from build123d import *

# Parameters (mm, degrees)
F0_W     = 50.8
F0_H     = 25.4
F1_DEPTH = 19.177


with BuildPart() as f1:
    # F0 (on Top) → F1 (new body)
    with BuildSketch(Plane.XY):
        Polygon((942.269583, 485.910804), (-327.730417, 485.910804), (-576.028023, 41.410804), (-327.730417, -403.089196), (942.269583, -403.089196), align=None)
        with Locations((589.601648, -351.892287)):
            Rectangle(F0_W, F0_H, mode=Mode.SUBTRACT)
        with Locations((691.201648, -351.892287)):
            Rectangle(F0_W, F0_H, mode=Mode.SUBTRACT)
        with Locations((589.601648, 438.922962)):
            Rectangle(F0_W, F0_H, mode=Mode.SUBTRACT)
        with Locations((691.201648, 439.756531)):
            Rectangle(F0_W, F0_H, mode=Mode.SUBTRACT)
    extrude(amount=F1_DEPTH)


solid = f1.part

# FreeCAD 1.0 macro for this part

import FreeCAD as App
import Part
import Sketcher

V = App.Vector
Q = App.Units.Quantity

doc = App.newDocument("Part")
params = doc.addObject("Spreadsheet::Sheet", "Params")
for row, (alias, value) in enumerate([
    ("sketch1_width", "50 in"),
    ("sketch1_width2", "2 in"),
    ("sketch1_height", "35 in"),
    ("sketch1_height2", "1 in"),
    ("pad1_length", "0.755 in"),
], start=1):
    params.set(f"A{row}", alias)
    params.set(f"B{row}", "=" + value)
    params.setAlias(f"B{row}", alias)

body = doc.addObject("PartDesign::Body", "Body")

# Sketch on XY plane
sketch1 = body.newObject("Sketcher::SketchObject", "Sketch")
sketch1.AttachmentSupport = (doc.getObject("XY_Plane"), [""])
sketch1.MapMode = "FlatFace"
sketch1.addGeometry(Part.LineSegment(V(942.269583, 485.910804, 0), V(-327.730417, 485.910804, 0)), False)
sketch1.addGeometry(Part.LineSegment(V(-327.730417, 485.910804, 0), V(-576.028023, 41.410804, 0)), False)
sketch1.addGeometry(Part.LineSegment(V(-576.028023, 41.410804, 0), V(-327.730417, -403.089196, 0)), False)
sketch1.addGeometry(Part.LineSegment(V(-327.730417, -403.089196, 0), V(942.269583, -403.089196, 0)), False)
sketch1.addGeometry(Part.LineSegment(V(942.269583, -403.089196, 0), V(942.269583, 485.910804, 0)), False)
sketch1.addGeometry(Part.LineSegment(V(615.001648, -364.592287, 0), V(564.201648, -364.592287, 0)), False)
sketch1.addGeometry(Part.LineSegment(V(564.201648, -364.592287, 0), V(564.201648, -339.192287, 0)), False)
sketch1.addGeometry(Part.LineSegment(V(564.201648, -339.192287, 0), V(615.001648, -339.192287, 0)), False)
sketch1.addGeometry(Part.LineSegment(V(615.001648, -339.192287, 0), V(615.001648, -364.592287, 0)), False)
sketch1.addGeometry(Part.LineSegment(V(716.601648, -364.592287, 0), V(665.801648, -364.592287, 0)), False)
sketch1.addGeometry(Part.LineSegment(V(665.801648, -364.592287, 0), V(665.801648, -339.192287, 0)), False)
sketch1.addGeometry(Part.LineSegment(V(665.801648, -339.192287, 0), V(716.601648, -339.192287, 0)), False)
sketch1.addGeometry(Part.LineSegment(V(716.601648, -339.192287, 0), V(716.601648, -364.592287, 0)), False)
sketch1.addGeometry(Part.LineSegment(V(615.001648, 426.222962, 0), V(564.201648, 426.222962, 0)), False)
sketch1.addGeometry(Part.LineSegment(V(564.201648, 426.222962, 0), V(564.201648, 451.622962, 0)), False)
sketch1.addGeometry(Part.LineSegment(V(564.201648, 451.622962, 0), V(615.001648, 451.622962, 0)), False)
sketch1.addGeometry(Part.LineSegment(V(615.001648, 451.622962, 0), V(615.001648, 426.222962, 0)), False)
sketch1.addGeometry(Part.LineSegment(V(716.601648, 427.056531, 0), V(665.801648, 427.056531, 0)), False)
sketch1.addGeometry(Part.LineSegment(V(665.801648, 427.056531, 0), V(665.801648, 452.456531, 0)), False)
sketch1.addGeometry(Part.LineSegment(V(665.801648, 452.456531, 0), V(716.601648, 452.456531, 0)), False)
sketch1.addGeometry(Part.LineSegment(V(716.601648, 452.456531, 0), V(716.601648, 427.056531, 0)), False)
sketch1.addConstraint(Sketcher.Constraint("Coincident", 0, 2, 1, 1))
sketch1.addConstraint(Sketcher.Constraint("Coincident", 1, 2, 2, 1))
sketch1.addConstraint(Sketcher.Constraint("Coincident", 2, 2, 3, 1))
sketch1.addConstraint(Sketcher.Constraint("Coincident", 3, 2, 4, 1))
sketch1.addConstraint(Sketcher.Constraint("Coincident", 4, 2, 0, 1))
sketch1.addConstraint(Sketcher.Constraint("Coincident", 5, 2, 6, 1))
sketch1.addConstraint(Sketcher.Constraint("Coincident", 6, 2, 7, 1))
sketch1.addConstraint(Sketcher.Constraint("Coincident", 7, 2, 8, 1))
sketch1.addConstraint(Sketcher.Constraint("Coincident", 8, 2, 5, 1))
sketch1.addConstraint(Sketcher.Constraint("Coincident", 9, 2, 10, 1))
sketch1.addConstraint(Sketcher.Constraint("Coincident", 10, 2, 11, 1))
sketch1.addConstraint(Sketcher.Constraint("Coincident", 11, 2, 12, 1))
sketch1.addConstraint(Sketcher.Constraint("Coincident", 12, 2, 9, 1))
sketch1.addConstraint(Sketcher.Constraint("Coincident", 13, 2, 14, 1))
sketch1.addConstraint(Sketcher.Constraint("Coincident", 14, 2, 15, 1))
sketch1.addConstraint(Sketcher.Constraint("Coincident", 15, 2, 16, 1))
sketch1.addConstraint(Sketcher.Constraint("Coincident", 16, 2, 13, 1))
sketch1.addConstraint(Sketcher.Constraint("Coincident", 17, 2, 18, 1))
sketch1.addConstraint(Sketcher.Constraint("Coincident", 18, 2, 19, 1))
sketch1.addConstraint(Sketcher.Constraint("Coincident", 19, 2, 20, 1))
sketch1.addConstraint(Sketcher.Constraint("Coincident", 20, 2, 17, 1))
sketch1.addConstraint(Sketcher.Constraint("Horizontal", 0))
sketch1.addConstraint(Sketcher.Constraint("Horizontal", 3))
sketch1.addConstraint(Sketcher.Constraint("Vertical", 4))
sketch1.addConstraint(Sketcher.Constraint("Horizontal", 5))
sketch1.addConstraint(Sketcher.Constraint("Vertical", 6))
sketch1.addConstraint(Sketcher.Constraint("Horizontal", 7))
sketch1.addConstraint(Sketcher.Constraint("Vertical", 8))
sketch1.addConstraint(Sketcher.Constraint("Horizontal", 9))
sketch1.addConstraint(Sketcher.Constraint("Vertical", 10))
sketch1.addConstraint(Sketcher.Constraint("Horizontal", 11))
sketch1.addConstraint(Sketcher.Constraint("Vertical", 12))
sketch1.addConstraint(Sketcher.Constraint("Horizontal", 13))
sketch1.addConstraint(Sketcher.Constraint("Vertical", 14))
sketch1.addConstraint(Sketcher.Constraint("Horizontal", 15))
sketch1.addConstraint(Sketcher.Constraint("Vertical", 16))
sketch1.addConstraint(Sketcher.Constraint("Horizontal", 17))
sketch1.addConstraint(Sketcher.Constraint("Vertical", 18))
sketch1.addConstraint(Sketcher.Constraint("Horizontal", 19))
sketch1.addConstraint(Sketcher.Constraint("Vertical", 20))
sketch1.addConstraint(Sketcher.Constraint("Horizontal", 8, 2, 9, 2))
sketch1.addConstraint(Sketcher.Constraint("Horizontal", 7, 2, 10, 2))
sketch1.addConstraint(Sketcher.Constraint("Vertical", 0, 2, 2, 2))
sketch1.addConstraint(Sketcher.Constraint("Vertical", 6, 2, 13, 2))
sketch1.addConstraint(Sketcher.Constraint("Vertical", 8, 2, 15, 2))
sketch1.addConstraint(Sketcher.Constraint("Vertical", 10, 2, 17, 2))
sketch1.addConstraint(Sketcher.Constraint("Vertical", 12, 2, 19, 2))
sketch1.addConstraint(Sketcher.Constraint("Equal", 7, 9))
sketch1.addConstraint(Sketcher.Constraint("Equal", 12, 14))
sketch1.addConstraint(Sketcher.Constraint("Equal", 16, 18))
sketch1.addConstraint(Sketcher.Constraint("Equal", 1, 2))
sketch1.addConstraint(Sketcher.Constraint("DistanceX", 0, 2, 0, 1, Q("50 in")))
sketch1.addConstraint(Sketcher.Constraint("DistanceX", 5, 2, 5, 1, Q("2 in")))
sketch1.addConstraint(Sketcher.Constraint("DistanceY", 4, 1, 4, 2, Q("35 in")))
sketch1.addConstraint(Sketcher.Constraint("DistanceY", 6, 1, 6, 2, Q("1 in")))
sketch1.addConstraint(Sketcher.Constraint("DistanceX", 8, 2, 9, 2, Q("2 in")))
sketch1.addConstraint(Sketcher.Constraint("Distance", 1, 509.14826))
sketch1.addConstraint(Sketcher.Constraint("DistanceX", -1, 1, 5, 2, 564.201648))
sketch1.addConstraint(Sketcher.Constraint("DistanceY", -1, 1, 13, 2, 426.222962))
sketch1.addConstraint(Sketcher.Constraint("DistanceY", -1, 1, 17, 2, 427.056531))
sketch1.addConstraint(Sketcher.Constraint("DistanceY", 3, 2, 5, 2, 38.496909))
sketch1.addConstraint(Sketcher.Constraint("DistanceX", 1, 2, 5, 2, 1140.229671))
sketch1.addConstraint(Sketcher.Constraint("DistanceY", 13, 2, 4, 2, 59.687842))
sketch1.setExpression("Constraints[51]", "Params.sketch1_width")
sketch1.setExpression("Constraints[52]", "Params.sketch1_width2")
sketch1.setExpression("Constraints[53]", "Params.sketch1_height")
sketch1.setExpression("Constraints[54]", "Params.sketch1_height2")
pad1 = body.newObject("PartDesign::Pad", "Pad")
pad1.Profile = sketch1
pad1.setExpression("Length", "Params.pad1_length")

doc.recompute()
